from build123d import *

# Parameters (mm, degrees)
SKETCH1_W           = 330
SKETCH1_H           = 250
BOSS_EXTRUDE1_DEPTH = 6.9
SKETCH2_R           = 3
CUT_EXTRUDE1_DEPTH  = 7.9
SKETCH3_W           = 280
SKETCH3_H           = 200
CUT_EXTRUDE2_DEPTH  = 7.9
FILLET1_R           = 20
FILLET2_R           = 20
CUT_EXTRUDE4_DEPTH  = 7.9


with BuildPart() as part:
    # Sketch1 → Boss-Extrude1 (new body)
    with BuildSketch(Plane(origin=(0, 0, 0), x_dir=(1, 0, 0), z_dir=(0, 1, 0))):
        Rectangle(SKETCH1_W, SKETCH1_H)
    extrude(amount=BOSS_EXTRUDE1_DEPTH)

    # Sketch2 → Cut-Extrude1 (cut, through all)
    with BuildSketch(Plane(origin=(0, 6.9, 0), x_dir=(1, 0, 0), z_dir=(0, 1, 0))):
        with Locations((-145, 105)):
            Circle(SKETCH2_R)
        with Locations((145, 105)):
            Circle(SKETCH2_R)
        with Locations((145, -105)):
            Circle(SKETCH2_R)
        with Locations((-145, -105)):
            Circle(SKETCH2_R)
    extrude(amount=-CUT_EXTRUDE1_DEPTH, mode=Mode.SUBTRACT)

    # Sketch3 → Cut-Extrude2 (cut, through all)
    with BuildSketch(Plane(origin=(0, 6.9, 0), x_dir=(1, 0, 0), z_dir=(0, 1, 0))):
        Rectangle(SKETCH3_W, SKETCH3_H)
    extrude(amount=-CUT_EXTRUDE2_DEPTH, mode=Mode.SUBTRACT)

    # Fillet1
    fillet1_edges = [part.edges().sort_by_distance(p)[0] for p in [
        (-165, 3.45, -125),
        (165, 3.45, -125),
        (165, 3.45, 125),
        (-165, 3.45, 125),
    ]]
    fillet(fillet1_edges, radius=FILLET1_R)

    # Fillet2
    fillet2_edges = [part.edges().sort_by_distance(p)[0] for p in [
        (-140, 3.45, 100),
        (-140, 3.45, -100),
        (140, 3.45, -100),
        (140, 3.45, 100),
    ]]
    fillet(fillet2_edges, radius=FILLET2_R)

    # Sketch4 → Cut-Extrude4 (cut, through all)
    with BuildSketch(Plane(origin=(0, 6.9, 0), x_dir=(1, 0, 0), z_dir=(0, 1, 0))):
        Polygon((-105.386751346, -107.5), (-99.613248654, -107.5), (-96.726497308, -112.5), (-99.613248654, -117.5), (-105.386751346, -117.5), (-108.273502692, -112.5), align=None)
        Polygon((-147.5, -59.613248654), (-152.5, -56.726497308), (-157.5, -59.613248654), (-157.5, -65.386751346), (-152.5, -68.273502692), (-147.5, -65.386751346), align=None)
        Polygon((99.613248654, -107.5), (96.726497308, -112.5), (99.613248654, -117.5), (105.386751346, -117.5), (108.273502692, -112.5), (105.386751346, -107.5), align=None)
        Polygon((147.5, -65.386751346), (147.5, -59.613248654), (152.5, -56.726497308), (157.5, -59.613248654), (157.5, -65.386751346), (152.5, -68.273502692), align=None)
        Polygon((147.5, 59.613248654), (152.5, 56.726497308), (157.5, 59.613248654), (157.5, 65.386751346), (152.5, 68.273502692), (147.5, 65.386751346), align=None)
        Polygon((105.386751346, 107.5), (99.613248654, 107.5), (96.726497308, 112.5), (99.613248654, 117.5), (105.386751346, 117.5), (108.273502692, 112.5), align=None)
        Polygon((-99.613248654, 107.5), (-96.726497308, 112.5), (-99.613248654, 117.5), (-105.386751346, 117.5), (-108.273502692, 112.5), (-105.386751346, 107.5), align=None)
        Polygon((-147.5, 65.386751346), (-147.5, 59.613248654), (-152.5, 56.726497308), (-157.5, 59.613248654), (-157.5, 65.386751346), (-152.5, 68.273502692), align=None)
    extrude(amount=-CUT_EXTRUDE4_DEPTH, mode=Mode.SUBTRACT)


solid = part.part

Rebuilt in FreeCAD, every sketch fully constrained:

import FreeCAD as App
import Part
import Sketcher

V = App.Vector
Q = App.Units.Quantity


def edges_at(feature, points):
    """Names of the edges that pass closest to the given points."""
    edges = feature.Shape.Edges
    near = lambda p: min(range(len(edges)), key=lambda i: edges[i].distToShape(Part.Vertex(*p))[0])
    return sorted({f"Edge{near(p) + 1}" for p in points})


def add_polygon(sketch, points):
    """Adds a closed chain of lines whose ends are joined by coincident constraints."""
    first, n = sketch.GeometryCount, len(points)
    for a, b in zip(points, points[1:] + points[:1]):
        sketch.addGeometry(Part.LineSegment(App.Vector(*a, 0), App.Vector(*b, 0)), False)
    for i in range(n):
        sketch.addConstraint(Sketcher.Constraint("Coincident", first + i, 2, first + (i + 1) % n, 1))

doc = App.newDocument("Part")
params = doc.addObject("Spreadsheet::Sheet", "Params")
for row, (alias, value) in enumerate([
    ("sketch1_width", "330 mm"),
    ("sketch1_height", "250 mm"),
    ("pad1_length", "6.9 mm"),
    ("sketch2_diameter", "6 mm"),
    ("sketch3_width", "280 mm"),
    ("sketch3_height", "200 mm"),
    ("fillet_radius", "20 mm"),
    ("fillet2_radius", "20 mm"),
], start=1):
    params.set(f"A{row}", alias)
    params.set(f"B{row}", "=" + value)
    params.setAlias(f"B{row}", alias)

body = doc.addObject("PartDesign::Body", "Body")

# Sketch on XZ plane
sketch1 = doc.addObject("Sketcher::SketchObject", "Sketch")
body.addObject(sketch1)
sketch1.AttachmentSupport = (doc.XZ_Plane, [""])
sketch1.MapMode = "FlatFace"
add_polygon(sketch1, [(-165, -125), (-165, 125), (165, 125), (165, -125)])  # lines 0-3
sketch1.addConstraint([
    Sketcher.Constraint("Vertical", 0),
    Sketcher.Constraint("Horizontal", 1),
    Sketcher.Constraint("Vertical", 2),
    Sketcher.Constraint("Horizontal", 3),
    Sketcher.Constraint("Symmetric", 0, 2, 2, 2, -1, 1),
    Sketcher.Constraint("DistanceX", 1, 1, 1, 2, Q("330 mm")),
    Sketcher.Constraint("DistanceY", 0, 1, 0, 2, Q("250 mm")),
])
sketch1.setExpression("Constraints[9]", "Params.sketch1_width")
sketch1.setExpression("Constraints[10]", "Params.sketch1_height")
pad1 = doc.addObject("PartDesign::Pad", "Pad")
body.addObject(pad1)
pad1.Profile = sketch1
pad1.setExpression("Length", "Params.pad1_length")
pad1.Reversed = True

# Sketch on XZ plane
sketch2 = doc.addObject("Sketcher::SketchObject", "Sketch001")
body.addObject(sketch2)
sketch2.AttachmentSupport = (doc.XZ_Plane, [""])
sketch2.MapMode = "FlatFace"
sketch2.AttachmentOffset = App.Placement(V(0, 0, -6.9), App.Rotation())
sketch2.addGeometry([
    Part.Circle(V(-145, -105, 0), V(0, 0, 1), 3),
    Part.Circle(V(145, -105, 0), V(0, 0, 1), 3),
    Part.Circle(V(145, 105, 0), V(0, 0, 1), 3),
    Part.Circle(V(-145, 105, 0), V(0, 0, 1), 3),
], False)
sketch2.addConstraint([
    Sketcher.Constraint("Equal", 0, 1),
    Sketcher.Constraint("Equal", 1, 2),
    Sketcher.Constraint("Equal", 2, 3),
    Sketcher.Constraint("Symmetric", 0, 3, 2, 3, -1, 1),
    Sketcher.Constraint("Symmetric", 1, 3, 3, 3, -1, 1),
    Sketcher.Constraint("Symmetric", 0, 3, 1, 3, -2),
    Sketcher.Constraint("Diameter", 0, Q("6 mm")),
    Sketcher.Constraint("DistanceX", 0, 3, -1, 1, Q("145 mm")),
    Sketcher.Constraint("DistanceY", 0, 3, -1, 1, Q("105 mm")),
])
sketch2.setExpression("Constraints[6]", "Params.sketch2_diameter")
pocket1 = doc.addObject("PartDesign::Pocket", "Pocket")
body.addObject(pocket1)
pocket1.Profile = sketch2
pocket1.Type = "ThroughAll"
pocket1.Reversed = True

# Sketch on XZ plane
sketch3 = doc.addObject("Sketcher::SketchObject", "Sketch002")
body.addObject(sketch3)
sketch3.AttachmentSupport = (doc.XZ_Plane, [""])
sketch3.MapMode = "FlatFace"
sketch3.AttachmentOffset = App.Placement(V(0, 0, -6.9), App.Rotation())
add_polygon(sketch3, [(-140, -100), (-140, 100), (140, 100), (140, -100)])  # lines 0-3
sketch3.addConstraint([
    Sketcher.Constraint("Vertical", 0),
    Sketcher.Constraint("Horizontal", 1),
    Sketcher.Constraint("Vertical", 2),
    Sketcher.Constraint("Horizontal", 3),
    Sketcher.Constraint("Symmetric", 0, 2, 2, 2, -1, 1),
    Sketcher.Constraint("DistanceX", 1, 1, 1, 2, Q("280 mm")),
    Sketcher.Constraint("DistanceY", 0, 1, 0, 2, Q("200 mm")),
])
sketch3.setExpression("Constraints[9]", "Params.sketch3_width")
sketch3.setExpression("Constraints[10]", "Params.sketch3_height")
pocket2 = doc.addObject("PartDesign::Pocket", "Pocket001")
body.addObject(pocket2)
pocket2.Profile = sketch3
pocket2.Type = "ThroughAll"
pocket2.Reversed = True
doc.recompute()

fillet = doc.addObject("PartDesign::Fillet", "Fillet")
body.addObject(fillet)
fillet.Base = (pocket2, edges_at(pocket2, [
    (-165, 3.45, -125),
    (165, 3.45, -125),
    (165, 3.45, 125),
    (-165, 3.45, 125),
]))
fillet.setExpression("Radius", "Params.fillet_radius")
doc.recompute()

fillet2 = doc.addObject("PartDesign::Fillet", "Fillet001")
body.addObject(fillet2)
fillet2.Base = (fillet, edges_at(fillet, [
    (-140, 3.45, 100),
    (-140, 3.45, -100),
    (140, 3.45, -100),
    (140, 3.45, 100),
]))
fillet2.setExpression("Radius", "Params.fillet2_radius")

# Sketch on XZ plane
sketch4 = doc.addObject("Sketcher::SketchObject", "Sketch003")
body.addObject(sketch4)
sketch4.AttachmentSupport = (doc.XZ_Plane, [""])
sketch4.MapMode = "FlatFace"
sketch4.AttachmentOffset = App.Placement(V(0, 0, -6.9), App.Rotation())
add_polygon(sketch4, [(-100, 108), (-105, 108), (-108, 112), (-105, 118), (-100, 118), (-97, 112)])  # lines 0-5
add_polygon(sketch4, [(-148, 60), (-152, 57), (-158, 60), (-158, 65), (-152, 68), (-148, 65)])  # lines 6-11
add_polygon(sketch4, [(100, 108), (97, 112), (100, 118), (105, 118), (108, 112), (105, 108)])  # lines 12-17
add_polygon(sketch4, [(148, 60), (148, 65), (152, 68), (158, 65), (158, 60), (152, 57)])  # lines 18-23
add_polygon(sketch4, [(148, -60), (152, -57), (158, -60), (158, -65), (152, -68), (148, -65)])  # lines 24-29
add_polygon(sketch4, [(100, -108), (105, -108), (108, -112), (105, -118), (100, -118), (97, -112)])  # lines 30-35
add_polygon(sketch4, [(-100, -108), (-97, -112), (-100, -118), (-105, -118), (-108, -112), (-105, -108)])  # lines 36-41
add_polygon(sketch4, [(-148, -60), (-148, -65), (-152, -68), (-158, -65), (-158, -60), (-152, -57)])  # lines 42-47
sketch4.addConstraint([
    Sketcher.Constraint("Horizontal", 0),
    Sketcher.Constraint("Horizontal", 3),
    Sketcher.Constraint("Vertical", 8),
    Sketcher.Constraint("Vertical", 11),
    Sketcher.Constraint("Horizontal", 14),
    Sketcher.Constraint("Horizontal", 17),
    Sketcher.Constraint("Vertical", 18),
    Sketcher.Constraint("Vertical", 21),
    Sketcher.Constraint("Vertical", 26),
    Sketcher.Constraint("Vertical", 29),
    Sketcher.Constraint("Horizontal", 30),
    Sketcher.Constraint("Horizontal", 33),
    Sketcher.Constraint("Horizontal", 38),
    Sketcher.Constraint("Horizontal", 41),
    Sketcher.Constraint("Vertical", 42),
    Sketcher.Constraint("Vertical", 45),
    Sketcher.Constraint("Symmetric", 6, 2, 24, 2, -1, 1),
    Sketcher.Constraint("Symmetric", 7, 2, 25, 2, -1, 1),
    Sketcher.Constraint("Symmetric", 9, 2, 27, 2, -1, 1),
    Sketcher.Constraint("Symmetric", 10, 2, 28, 2, -1, 1),
    Sketcher.Constraint("Symmetric", 0, 2, 30, 2, -1, 1),
    Sketcher.Constraint("Symmetric", 1, 2, 31, 2, -1, 1),
    Sketcher.Constraint("Symmetric", 2, 2, 32, 2, -1, 1),
    Sketcher.Constraint("Symmetric", 4, 2, 34, 2, -1, 1),
    Sketcher.Constraint("Symmetric", 12, 2, 36, 2, -1, 1),
    Sketcher.Constraint("Symmetric", 13, 2, 37, 2, -1, 1),
    Sketcher.Constraint("Symmetric", 15, 2, 39, 2, -1, 1),
    Sketcher.Constraint("Symmetric", 16, 2, 40, 2, -1, 1),
    Sketcher.Constraint("Symmetric", 18, 2, 42, 2, -1, 1),
    Sketcher.Constraint("Symmetric", 19, 2, 43, 2, -1, 1),
    Sketcher.Constraint("Symmetric", 20, 2, 44, 2, -1, 1),
    Sketcher.Constraint("Symmetric", 22, 2, 46, 2, -1, 1),
    Sketcher.Constraint("Symmetric", 4, 2, 12, 2, -2),
    Sketcher.Constraint("Symmetric", 3, 2, 13, 2, -2),
    Sketcher.Constraint("Symmetric", 1, 2, 15, 2, -2),
    Sketcher.Constraint("Symmetric", 0, 2, 16, 2, -2),
    Sketcher.Constraint("Symmetric", 10, 2, 18, 2, -2),
    Sketcher.Constraint("Symmetric", 9, 2, 19, 2, -2),
    Sketcher.Constraint("Symmetric", 8, 2, 20, 2, -2),
    Sketcher.Constraint("Symmetric", 6, 2, 22, 2, -2),
    Sketcher.Constraint("Parallel", 1, 4),
    Sketcher.Constraint("Parallel", 2, 5),
    Sketcher.Constraint("Perpendicular", 4, 6),
    Sketcher.Constraint("Perpendicular", 5, 7),
    Sketcher.Constraint("Parallel", 6, 9),
    Sketcher.Constraint("Parallel", 7, 10),
    Sketcher.Constraint("Perpendicular", 9, 12),
    Sketcher.Constraint("Perpendicular", 10, 13),
    Sketcher.Constraint("Parallel", 12, 15),
    Sketcher.Constraint("Parallel", 19, 22),
    Sketcher.Constraint("Parallel", 20, 23),
    Sketcher.Constraint("Parallel", 22, 24),
    Sketcher.Constraint("Parallel", 24, 27),
    Sketcher.Constraint("Parallel", 31, 34),
    Sketcher.Constraint("Parallel", 32, 35),
    Sketcher.Constraint("Parallel", 34, 36),
    Sketcher.Constraint("Parallel", 36, 39),
    Sketcher.Constraint("Parallel", 43, 46),
    Sketcher.Constraint("Parallel", 44, 47),
    Sketcher.Constraint("Horizontal", 1, 2, 4, 2),
    Sketcher.Constraint("Horizontal", 8, 2, 10, 2),
    Sketcher.Constraint("Horizontal", 7, 2, 11, 2),
    Sketcher.Constraint("Vertical", 0, 2, 2, 2),
    Sketcher.Constraint("Equal", 41, 8),
    Sketcher.Constraint("Equal", 5, 6),
    Sketcher.Constraint("Angle", 1, Q("120 deg")),
    Sketcher.Constraint("DistanceY", 0, 2, 1, 2, Q("5 mm")),
    Sketcher.Constraint("DistanceX", 2, 2, 13, 2, Q("205 mm")),
    Sketcher.Constraint("DistanceY", 25, 2, 20, 2, Q("125 mm")),
    Sketcher.Constraint("DistanceY", -1, 1, 0, 2, Q("107.5 mm")),
    Sketcher.Constraint("DistanceX", 6, 2, -1, 1, Q("152.5 mm")),
    Sketcher.Constraint("DistanceX", 0, 2, 0, 1, Q("5.773503 mm")),
])
pocket3 = doc.addObject("PartDesign::Pocket", "Pocket002")
body.addObject(pocket3)
pocket3.Profile = sketch4
pocket3.Type = "ThroughAll"
pocket3.Reversed = True

doc.recompute()
